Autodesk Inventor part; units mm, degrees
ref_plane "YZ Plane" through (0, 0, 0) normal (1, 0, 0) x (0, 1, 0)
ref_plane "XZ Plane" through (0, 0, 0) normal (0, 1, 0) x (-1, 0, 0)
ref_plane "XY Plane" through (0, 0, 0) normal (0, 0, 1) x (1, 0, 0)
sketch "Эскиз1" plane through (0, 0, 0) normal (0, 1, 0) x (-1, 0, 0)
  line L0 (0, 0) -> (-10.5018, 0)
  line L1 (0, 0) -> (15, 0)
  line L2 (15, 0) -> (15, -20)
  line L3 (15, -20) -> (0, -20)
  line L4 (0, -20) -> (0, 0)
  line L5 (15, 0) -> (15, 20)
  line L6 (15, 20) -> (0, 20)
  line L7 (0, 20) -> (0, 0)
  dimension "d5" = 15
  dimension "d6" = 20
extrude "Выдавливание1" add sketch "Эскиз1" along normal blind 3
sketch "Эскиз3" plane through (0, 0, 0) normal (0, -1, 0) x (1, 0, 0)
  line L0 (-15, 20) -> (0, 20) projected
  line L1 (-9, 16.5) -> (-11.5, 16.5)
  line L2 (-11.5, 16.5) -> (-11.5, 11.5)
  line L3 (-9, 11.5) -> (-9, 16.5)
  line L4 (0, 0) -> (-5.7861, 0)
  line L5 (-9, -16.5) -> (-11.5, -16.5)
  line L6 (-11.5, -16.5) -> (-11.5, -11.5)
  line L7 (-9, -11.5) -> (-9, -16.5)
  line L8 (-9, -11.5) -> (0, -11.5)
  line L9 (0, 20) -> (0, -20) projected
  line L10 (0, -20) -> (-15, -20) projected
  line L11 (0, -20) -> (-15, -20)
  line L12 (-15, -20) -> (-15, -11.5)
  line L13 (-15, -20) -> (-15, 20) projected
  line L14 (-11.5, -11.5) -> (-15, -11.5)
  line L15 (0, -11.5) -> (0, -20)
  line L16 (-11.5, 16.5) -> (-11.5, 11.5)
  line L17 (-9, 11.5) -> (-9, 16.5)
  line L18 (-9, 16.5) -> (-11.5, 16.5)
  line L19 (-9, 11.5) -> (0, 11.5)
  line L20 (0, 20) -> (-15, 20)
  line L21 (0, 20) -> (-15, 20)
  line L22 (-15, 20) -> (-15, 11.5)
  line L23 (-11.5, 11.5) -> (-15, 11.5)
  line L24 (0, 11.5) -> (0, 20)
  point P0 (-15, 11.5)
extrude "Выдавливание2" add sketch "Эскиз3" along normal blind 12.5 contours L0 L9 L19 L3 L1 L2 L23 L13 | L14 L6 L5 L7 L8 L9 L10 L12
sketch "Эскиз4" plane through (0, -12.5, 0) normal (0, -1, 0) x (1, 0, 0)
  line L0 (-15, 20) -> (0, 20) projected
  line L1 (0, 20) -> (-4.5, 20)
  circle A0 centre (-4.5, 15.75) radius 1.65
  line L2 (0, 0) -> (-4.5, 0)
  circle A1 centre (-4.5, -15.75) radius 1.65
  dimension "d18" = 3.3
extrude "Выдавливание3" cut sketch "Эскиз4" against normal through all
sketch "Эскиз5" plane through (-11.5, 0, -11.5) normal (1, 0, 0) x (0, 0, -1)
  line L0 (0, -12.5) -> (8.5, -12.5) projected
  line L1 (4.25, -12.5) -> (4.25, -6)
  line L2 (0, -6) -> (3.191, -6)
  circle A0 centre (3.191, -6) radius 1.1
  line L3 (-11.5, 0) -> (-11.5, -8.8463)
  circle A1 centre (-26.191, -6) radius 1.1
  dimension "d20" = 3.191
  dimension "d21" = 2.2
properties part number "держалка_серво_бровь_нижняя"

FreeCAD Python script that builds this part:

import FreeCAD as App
import Part
import Sketcher
Q = App.Units.Quantity

doc = App.newDocument("Part")
body = doc.addObject("PartDesign::Body", "Body")

# Sketch on XZ plane
sketch1 = doc.addObject("Sketcher::SketchObject", "Sketch")
body.addObject(sketch1)
sketch1.AttachmentSupport = (doc.XZ_Plane, [""])
sketch1.MapMode = "FlatFace"
sketch1.addGeometry([
    Part.LineSegment(App.Vector(0, 20, 0), App.Vector(0, -20, 0)),
    Part.LineSegment(App.Vector(0, -20, 0), App.Vector(-15, -20, 0)),
    Part.LineSegment(App.Vector(-15, -20, 0), App.Vector(-15, 20, 0)),
    Part.LineSegment(App.Vector(-15, 20, 0), App.Vector(0, 20, 0)),
], False)
sketch1.addConstraint([
    Sketcher.Constraint("Coincident", 0, 2, 1, 1),
    Sketcher.Constraint("Coincident", 1, 2, 2, 1),
    Sketcher.Constraint("Coincident", 2, 2, 3, 1),
    Sketcher.Constraint("Coincident", 3, 2, 0, 1),
    Sketcher.Constraint("Vertical", 0),
    Sketcher.Constraint("Horizontal", 1),
    Sketcher.Constraint("Vertical", 2),
    Sketcher.Constraint("Horizontal", 3),
    Sketcher.Constraint("Symmetric", 0, 2, 3, 2, -1, 1),
    Sketcher.Constraint("DistanceX", 1, 2, 1, 1, Q("15 mm")),
    Sketcher.Constraint("DistanceY", 0, 2, -1, 1, Q("20 mm")),
])
pad1 = doc.addObject("PartDesign::Pad", "Pad")
body.addObject(pad1)
pad1.Profile = sketch1
pad1.Length = 3
pad1.Reversed = True

# Sketch on XZ plane
sketch2 = doc.addObject("Sketcher::SketchObject", "Sketch001")
body.addObject(sketch2)
sketch2.AttachmentSupport = (doc.XZ_Plane, [""])
sketch2.MapMode = "FlatFace"
sketch2.addGeometry([
    Part.LineSegment(App.Vector(0, 20, 0), App.Vector(-15, 20, 0)),  # 0
    Part.LineSegment(App.Vector(-15, 20, 0), App.Vector(-15, 11.5, 0)),  # 1
    Part.LineSegment(App.Vector(-15, 11.5, 0), App.Vector(-11.5, 11.5, 0)),  # 2
    Part.LineSegment(App.Vector(-11.5, 11.5, 0), App.Vector(-11.5, 16.5, 0)),  # 3
    Part.LineSegment(App.Vector(-11.5, 16.5, 0), App.Vector(-9, 16.5, 0)),  # 4
    Part.LineSegment(App.Vector(-9, 16.5, 0), App.Vector(-9, 11.5, 0)),  # 5
    Part.LineSegment(App.Vector(-9, 11.5, 0), App.Vector(0, 11.5, 0)),  # 6
    Part.LineSegment(App.Vector(0, 11.5, 0), App.Vector(0, 20, 0)),  # 7
    Part.LineSegment(App.Vector(-11.5, -11.5, 0), App.Vector(-15, -11.5, 0)),  # 8
    Part.LineSegment(App.Vector(-15, -11.5, 0), App.Vector(-15, -20, 0)),  # 9
    Part.LineSegment(App.Vector(-15, -20, 0), App.Vector(0, -20, 0)),  # 10
    Part.LineSegment(App.Vector(0, -20, 0), App.Vector(0, -11.5, 0)),  # 11
    Part.LineSegment(App.Vector(0, -11.5, 0), App.Vector(-9, -11.5, 0)),  # 12
    Part.LineSegment(App.Vector(-9, -11.5, 0), App.Vector(-9, -16.5, 0)),  # 13
    Part.LineSegment(App.Vector(-9, -16.5, 0), App.Vector(-11.5, -16.5, 0)),  # 14
    Part.LineSegment(App.Vector(-11.5, -16.5, 0), App.Vector(-11.5, -11.5, 0)),  # 15
], False)
sketch2.addConstraint([
    Sketcher.Constraint("Coincident", 0, 2, 1, 1),
    Sketcher.Constraint("Coincident", 1, 2, 2, 1),
    Sketcher.Constraint("Coincident", 2, 2, 3, 1),
    Sketcher.Constraint("Coincident", 3, 2, 4, 1),
    Sketcher.Constraint("Coincident", 4, 2, 5, 1),
    Sketcher.Constraint("Coincident", 5, 2, 6, 1),
    Sketcher.Constraint("Coincident", 6, 2, 7, 1),
    Sketcher.Constraint("Coincident", 7, 2, 0, 1),
    Sketcher.Constraint("Coincident", 8, 2, 9, 1),
    Sketcher.Constraint("Coincident", 9, 2, 10, 1),
    Sketcher.Constraint("Coincident", 10, 2, 11, 1),
    Sketcher.Constraint("Coincident", 11, 2, 12, 1),
    Sketcher.Constraint("Coincident", 12, 2, 13, 1),
    Sketcher.Constraint("Coincident", 13, 2, 14, 1),
    Sketcher.Constraint("Coincident", 14, 2, 15, 1),
    Sketcher.Constraint("Coincident", 15, 2, 8, 1),
    Sketcher.Constraint("Horizontal", 0),
    Sketcher.Constraint("Vertical", 1),
    Sketcher.Constraint("Horizontal", 2),
    Sketcher.Constraint("Vertical", 3),
    Sketcher.Constraint("Horizontal", 4),
    Sketcher.Constraint("Vertical", 5),
    Sketcher.Constraint("Horizontal", 6),
    Sketcher.Constraint("Vertical", 7),
    Sketcher.Constraint("Horizontal", 8),
    Sketcher.Constraint("Vertical", 9),
    Sketcher.Constraint("Horizontal", 10),
    Sketcher.Constraint("Vertical", 11),
    Sketcher.Constraint("Horizontal", 12),
    Sketcher.Constraint("Vertical", 13),
    Sketcher.Constraint("Horizontal", 14),
    Sketcher.Constraint("Vertical", 15),
    Sketcher.Constraint("Symmetric", 7, 2, 10, 2, -1, 1),
    Sketcher.Constraint("Symmetric", 1, 2, 8, 2, -1),
    Sketcher.Constraint("Symmetric", 6, 2, 11, 2, -1),
    Sketcher.Constraint("Symmetric", 4, 2, 13, 2, -1),
    Sketcher.Constraint("Horizontal", 2, 2, 5, 2),
    Sketcher.Constraint("Vertical", 3, 2, 14, 2),
    Sketcher.Constraint("DistanceX", 0, 2, 0, 1, Q("15 mm")),
    Sketcher.Constraint("DistanceX", 6, 1, 6, 2, Q("9 mm")),
    Sketcher.Constraint("DistanceY", 3, 1, 3, 2, Q("5 mm")),
    Sketcher.Constraint("DistanceX", 2, 1, 2, 2, Q("3.5 mm")),
    Sketcher.Constraint("DistanceY", 1, 2, 1, 1, Q("8.5 mm")),
    Sketcher.Constraint("DistanceY", -1, 1, 0, 2, Q("20 mm")),
])
pad2 = doc.addObject("PartDesign::Pad", "Pad001")
body.addObject(pad2)
pad2.Profile = sketch2
pad2.Length = 12.5

# Sketch on XZ plane
sketch3 = doc.addObject("Sketcher::SketchObject", "Sketch002")
body.addObject(sketch3)
sketch3.AttachmentSupport = (doc.XZ_Plane, [""])
sketch3.MapMode = "FlatFace"
sketch3.AttachmentOffset = App.Placement(App.Vector(0, 0, 12.5), App.Rotation())
sketch3.addGeometry([
    Part.Circle(App.Vector(-4.5, 15.8, 0), App.Vector(0, 0, 1), 1.6),
    Part.Circle(App.Vector(-4.5, -15.8, 0), App.Vector(0, 0, 1), 1.6),
], False)
sketch3.addConstraint([
    Sketcher.Constraint("Equal", 0, 1),
    Sketcher.Constraint("Symmetric", 0, 3, 1, 3, -1),
    Sketcher.Constraint("Diameter", 0, Q("3.3 mm")),
    Sketcher.Constraint("DistanceX", 0, 3, -1, 1, Q("4.5 mm")),
    Sketcher.Constraint("DistanceY", 1, 3, 0, 3, Q("31.5 mm")),
])
pocket1 = doc.addObject("PartDesign::Pocket", "Pocket")
body.addObject(pocket1)
pocket1.Profile = sketch3
pocket1.Type = "ThroughAll"

doc.recompute()
